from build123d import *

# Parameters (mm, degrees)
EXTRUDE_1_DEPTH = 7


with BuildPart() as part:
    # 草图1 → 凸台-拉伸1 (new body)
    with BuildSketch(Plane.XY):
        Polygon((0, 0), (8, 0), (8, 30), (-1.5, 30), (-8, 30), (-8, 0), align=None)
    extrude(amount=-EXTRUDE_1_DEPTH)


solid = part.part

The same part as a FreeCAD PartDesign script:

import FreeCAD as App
import Part
import Sketcher

doc = App.newDocument("Part")
body = doc.addObject("PartDesign::Body", "Body")

sketch1 = body.newObject("Sketcher::SketchObject", "Sketch")
sketch1.AttachmentSupport = (doc.getObject("XY_Plane"), [""])
sketch1.MapMode = "FlatFace"
sketch1.addGeometry([
    Part.LineSegment(App.Vector(8, 0, 0), App.Vector(8, 30, 0)),
    Part.LineSegment(App.Vector(8, 30, 0), App.Vector(-8, 30, 0)),
    Part.LineSegment(App.Vector(-8, 30, 0), App.Vector(-8, 0, 0)),
    Part.LineSegment(App.Vector(-8, 0, 0), App.Vector(8, 0, 0)),
], False)
sketch1.addConstraint([
    Sketcher.Constraint("Coincident", 0, 2, 1, 1),
    Sketcher.Constraint("Coincident", 1, 2, 2, 1),
    Sketcher.Constraint("Coincident", 2, 2, 3, 1),
    Sketcher.Constraint("Coincident", 3, 2, 0, 1),
    Sketcher.Constraint("Vertical", 0),
    Sketcher.Constraint("Horizontal", 1),
    Sketcher.Constraint("Vertical", 2),
    Sketcher.Constraint("Horizontal", 3),
    Sketcher.Constraint("Symmetric", 2, 2, 3, 2, -1, 1),
    Sketcher.Constraint("DistanceX", 1, 2, 1, 1, 16.0),
    Sketcher.Constraint("DistanceY", 0, 1, 0, 2, 30.0),
])
pad1 = body.newObject("PartDesign::Pad", "Pad")
pad1.Profile = sketch1
pad1.Length = 7
pad1.Reversed = True

doc.recompute()
